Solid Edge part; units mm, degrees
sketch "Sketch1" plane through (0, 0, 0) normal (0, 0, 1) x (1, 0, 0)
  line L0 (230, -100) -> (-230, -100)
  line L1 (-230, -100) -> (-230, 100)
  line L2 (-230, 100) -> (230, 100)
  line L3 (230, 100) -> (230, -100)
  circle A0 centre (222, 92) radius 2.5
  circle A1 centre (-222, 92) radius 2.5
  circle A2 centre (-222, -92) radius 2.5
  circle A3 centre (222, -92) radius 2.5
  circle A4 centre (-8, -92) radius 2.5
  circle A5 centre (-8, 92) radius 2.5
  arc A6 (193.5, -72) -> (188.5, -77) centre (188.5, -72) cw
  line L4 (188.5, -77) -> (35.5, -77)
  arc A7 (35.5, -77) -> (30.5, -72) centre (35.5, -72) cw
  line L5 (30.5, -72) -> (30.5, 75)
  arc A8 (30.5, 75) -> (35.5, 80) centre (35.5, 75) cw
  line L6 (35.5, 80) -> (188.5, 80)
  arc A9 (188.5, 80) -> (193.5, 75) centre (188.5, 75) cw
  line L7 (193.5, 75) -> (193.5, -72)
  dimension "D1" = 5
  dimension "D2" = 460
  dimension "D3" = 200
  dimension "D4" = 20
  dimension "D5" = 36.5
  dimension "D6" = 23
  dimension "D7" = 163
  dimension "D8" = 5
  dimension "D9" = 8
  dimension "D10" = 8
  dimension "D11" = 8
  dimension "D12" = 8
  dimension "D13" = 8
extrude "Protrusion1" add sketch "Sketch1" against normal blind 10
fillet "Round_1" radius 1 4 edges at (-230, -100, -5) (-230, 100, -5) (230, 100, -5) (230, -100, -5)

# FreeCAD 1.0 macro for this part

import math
import FreeCAD as App
import Part
import Sketcher

V = App.Vector
Q = App.Units.Quantity


def edges_at(feature, points):
    """Names of the edges that pass closest to the given points."""
    edges = feature.Shape.Edges
    near = lambda p: min(range(len(edges)), key=lambda i: edges[i].distToShape(Part.Vertex(*p))[0])
    return sorted({f"Edge{near(p) + 1}" for p in points})

doc = App.newDocument("Part")
body = doc.addObject("PartDesign::Body", "Body")

sketch1 = doc.addObject("Sketcher::SketchObject", "Sketch")
body.addObject(sketch1)
sketch1.AttachmentSupport = (doc.XY_Plane, [""])
sketch1.MapMode = "FlatFace"
sketch1.addGeometry([
    Part.LineSegment(V(-230, -100, 0), V(230, -100, 0)),
    Part.LineSegment(V(230, -100, 0), V(230, 100, 0)),
    Part.LineSegment(V(230, 100, 0), V(-230, 100, 0)),
    Part.LineSegment(V(-230, 100, 0), V(-230, -100, 0)),
    Part.Circle(V(-222, -92, 0), V(0, 0, 1), 2.5),
    Part.Circle(V(-8, -92, 0), V(0, 0, 1), 2.5),
    Part.Circle(V(222, -92, 0), V(0, 0, 1), 2.5),
    Part.Circle(V(-222, 92, 0), V(0, 0, 1), 2.5),
    Part.Circle(V(-8, 92, 0), V(0, 0, 1), 2.5),
    Part.LineSegment(V(193.5, 75, 0), V(193.5, -72, 0)),
    Part.ArcOfCircle(Part.Circle(V(188.5, -72, 0), V(0, 0, 1), 5), math.radians(-90), math.radians(0)),
    Part.LineSegment(V(188.5, -77, 0), V(35.5, -77, 0)),
    Part.ArcOfCircle(Part.Circle(V(35.5, -72, 0), V(0, 0, 1), 5), math.radians(180), math.radians(270)),
    Part.LineSegment(V(30.5, -72, 0), V(30.5, 75, 0)),
    Part.ArcOfCircle(Part.Circle(V(35.5, 75, 0), V(0, 0, 1), 5), math.radians(90), math.radians(180)),
    Part.LineSegment(V(35.5, 80, 0), V(188.5, 80, 0)),
    Part.ArcOfCircle(Part.Circle(V(188.5, 75, 0), V(0, 0, 1), 5), math.radians(0), math.radians(90)),
    Part.Circle(V(222, 92, 0), V(0, 0, 1), 2.5),
], False)
sketch1.addConstraint([
    Sketcher.Constraint("Coincident", 0, 2, 1, 1),
    Sketcher.Constraint("Coincident", 1, 2, 2, 1),
    Sketcher.Constraint("Coincident", 2, 2, 3, 1),
    Sketcher.Constraint("Coincident", 3, 2, 0, 1),
    Sketcher.Constraint("Tangent", 9, 2, 10, 2),
    Sketcher.Constraint("Tangent", 10, 1, 11, 1),
    Sketcher.Constraint("Tangent", 11, 2, 12, 2),
    Sketcher.Constraint("Tangent", 12, 1, 13, 1),
    Sketcher.Constraint("Tangent", 13, 2, 14, 2),
    Sketcher.Constraint("Tangent", 14, 1, 15, 1),
    Sketcher.Constraint("Tangent", 15, 2, 16, 2),
    Sketcher.Constraint("Tangent", 16, 1, 9, 1),
    Sketcher.Constraint("Horizontal", 0),
    Sketcher.Constraint("Vertical", 1),
    Sketcher.Constraint("Horizontal", 2),
    Sketcher.Constraint("Vertical", 3),
    Sketcher.Constraint("Vertical", 9),
    Sketcher.Constraint("Horizontal", 11),
    Sketcher.Constraint("Vertical", 13),
    Sketcher.Constraint("Horizontal", 15),
    Sketcher.Constraint("Equal", 4, 5),
    Sketcher.Constraint("Equal", 5, 6),
    Sketcher.Constraint("Equal", 6, 7),
    Sketcher.Constraint("Equal", 7, 8),
    Sketcher.Constraint("Equal", 10, 12),
    Sketcher.Constraint("Equal", 12, 14),
    Sketcher.Constraint("Equal", 14, 16),
    Sketcher.Constraint("Equal", 8, 17),
    Sketcher.Constraint("Symmetric", 6, 3, 7, 3, -1, 1),
    Sketcher.Constraint("Symmetric", 4, 3, 17, 3, -1, 1),
    Sketcher.Constraint("Symmetric", 0, 2, 2, 2, -1, 1),
    Sketcher.Constraint("Symmetric", 4, 3, 6, 3, -2),
    Sketcher.Constraint("Symmetric", 5, 3, 8, 3, -1),
    Sketcher.Constraint("Horizontal", 4, 3, 5, 3),
    Sketcher.Constraint("Diameter", 4, Q("5 mm")),
    Sketcher.Constraint("DistanceX", 4, 3, -1, 1, Q("222 mm")),
    Sketcher.Constraint("DistanceX", -1, 1, 0, 2, Q("230 mm")),
    Sketcher.Constraint("Radius", 10, Q("5 mm")),
    Sketcher.Constraint("DistanceX", 5, 3, 6, 3, Q("230 mm")),
    Sketcher.Constraint("DistanceX", 11, 2, 11, 1, Q("153 mm")),
    Sketcher.Constraint("DistanceY", 1, 1, 1, 2, Q("200 mm")),
    Sketcher.Constraint("DistanceY", 9, 2, 9, 1, Q("147 mm")),
    Sketcher.Constraint("DistanceY", 4, 3, -1, 1, Q("92 mm")),
    Sketcher.Constraint("DistanceY", 10, 3, -1, 1, Q("72 mm")),
    Sketcher.Constraint("DistanceX", -1, 1, 10, 3, Q("188.5 mm")),
])
pad1 = doc.addObject("PartDesign::Pad", "Pad")
body.addObject(pad1)
pad1.Profile = sketch1
pad1.Length = 10
pad1.Reversed = True
doc.recompute()

fillet = doc.addObject("PartDesign::Fillet", "Fillet")
body.addObject(fillet)
fillet.Base = (pad1, edges_at(pad1, [
    (-230, -100, -5),
    (-230, 100, -5),
    (230, 100, -5),
    (230, -100, -5),
]))
fillet.Radius = 1

doc.recompute()
